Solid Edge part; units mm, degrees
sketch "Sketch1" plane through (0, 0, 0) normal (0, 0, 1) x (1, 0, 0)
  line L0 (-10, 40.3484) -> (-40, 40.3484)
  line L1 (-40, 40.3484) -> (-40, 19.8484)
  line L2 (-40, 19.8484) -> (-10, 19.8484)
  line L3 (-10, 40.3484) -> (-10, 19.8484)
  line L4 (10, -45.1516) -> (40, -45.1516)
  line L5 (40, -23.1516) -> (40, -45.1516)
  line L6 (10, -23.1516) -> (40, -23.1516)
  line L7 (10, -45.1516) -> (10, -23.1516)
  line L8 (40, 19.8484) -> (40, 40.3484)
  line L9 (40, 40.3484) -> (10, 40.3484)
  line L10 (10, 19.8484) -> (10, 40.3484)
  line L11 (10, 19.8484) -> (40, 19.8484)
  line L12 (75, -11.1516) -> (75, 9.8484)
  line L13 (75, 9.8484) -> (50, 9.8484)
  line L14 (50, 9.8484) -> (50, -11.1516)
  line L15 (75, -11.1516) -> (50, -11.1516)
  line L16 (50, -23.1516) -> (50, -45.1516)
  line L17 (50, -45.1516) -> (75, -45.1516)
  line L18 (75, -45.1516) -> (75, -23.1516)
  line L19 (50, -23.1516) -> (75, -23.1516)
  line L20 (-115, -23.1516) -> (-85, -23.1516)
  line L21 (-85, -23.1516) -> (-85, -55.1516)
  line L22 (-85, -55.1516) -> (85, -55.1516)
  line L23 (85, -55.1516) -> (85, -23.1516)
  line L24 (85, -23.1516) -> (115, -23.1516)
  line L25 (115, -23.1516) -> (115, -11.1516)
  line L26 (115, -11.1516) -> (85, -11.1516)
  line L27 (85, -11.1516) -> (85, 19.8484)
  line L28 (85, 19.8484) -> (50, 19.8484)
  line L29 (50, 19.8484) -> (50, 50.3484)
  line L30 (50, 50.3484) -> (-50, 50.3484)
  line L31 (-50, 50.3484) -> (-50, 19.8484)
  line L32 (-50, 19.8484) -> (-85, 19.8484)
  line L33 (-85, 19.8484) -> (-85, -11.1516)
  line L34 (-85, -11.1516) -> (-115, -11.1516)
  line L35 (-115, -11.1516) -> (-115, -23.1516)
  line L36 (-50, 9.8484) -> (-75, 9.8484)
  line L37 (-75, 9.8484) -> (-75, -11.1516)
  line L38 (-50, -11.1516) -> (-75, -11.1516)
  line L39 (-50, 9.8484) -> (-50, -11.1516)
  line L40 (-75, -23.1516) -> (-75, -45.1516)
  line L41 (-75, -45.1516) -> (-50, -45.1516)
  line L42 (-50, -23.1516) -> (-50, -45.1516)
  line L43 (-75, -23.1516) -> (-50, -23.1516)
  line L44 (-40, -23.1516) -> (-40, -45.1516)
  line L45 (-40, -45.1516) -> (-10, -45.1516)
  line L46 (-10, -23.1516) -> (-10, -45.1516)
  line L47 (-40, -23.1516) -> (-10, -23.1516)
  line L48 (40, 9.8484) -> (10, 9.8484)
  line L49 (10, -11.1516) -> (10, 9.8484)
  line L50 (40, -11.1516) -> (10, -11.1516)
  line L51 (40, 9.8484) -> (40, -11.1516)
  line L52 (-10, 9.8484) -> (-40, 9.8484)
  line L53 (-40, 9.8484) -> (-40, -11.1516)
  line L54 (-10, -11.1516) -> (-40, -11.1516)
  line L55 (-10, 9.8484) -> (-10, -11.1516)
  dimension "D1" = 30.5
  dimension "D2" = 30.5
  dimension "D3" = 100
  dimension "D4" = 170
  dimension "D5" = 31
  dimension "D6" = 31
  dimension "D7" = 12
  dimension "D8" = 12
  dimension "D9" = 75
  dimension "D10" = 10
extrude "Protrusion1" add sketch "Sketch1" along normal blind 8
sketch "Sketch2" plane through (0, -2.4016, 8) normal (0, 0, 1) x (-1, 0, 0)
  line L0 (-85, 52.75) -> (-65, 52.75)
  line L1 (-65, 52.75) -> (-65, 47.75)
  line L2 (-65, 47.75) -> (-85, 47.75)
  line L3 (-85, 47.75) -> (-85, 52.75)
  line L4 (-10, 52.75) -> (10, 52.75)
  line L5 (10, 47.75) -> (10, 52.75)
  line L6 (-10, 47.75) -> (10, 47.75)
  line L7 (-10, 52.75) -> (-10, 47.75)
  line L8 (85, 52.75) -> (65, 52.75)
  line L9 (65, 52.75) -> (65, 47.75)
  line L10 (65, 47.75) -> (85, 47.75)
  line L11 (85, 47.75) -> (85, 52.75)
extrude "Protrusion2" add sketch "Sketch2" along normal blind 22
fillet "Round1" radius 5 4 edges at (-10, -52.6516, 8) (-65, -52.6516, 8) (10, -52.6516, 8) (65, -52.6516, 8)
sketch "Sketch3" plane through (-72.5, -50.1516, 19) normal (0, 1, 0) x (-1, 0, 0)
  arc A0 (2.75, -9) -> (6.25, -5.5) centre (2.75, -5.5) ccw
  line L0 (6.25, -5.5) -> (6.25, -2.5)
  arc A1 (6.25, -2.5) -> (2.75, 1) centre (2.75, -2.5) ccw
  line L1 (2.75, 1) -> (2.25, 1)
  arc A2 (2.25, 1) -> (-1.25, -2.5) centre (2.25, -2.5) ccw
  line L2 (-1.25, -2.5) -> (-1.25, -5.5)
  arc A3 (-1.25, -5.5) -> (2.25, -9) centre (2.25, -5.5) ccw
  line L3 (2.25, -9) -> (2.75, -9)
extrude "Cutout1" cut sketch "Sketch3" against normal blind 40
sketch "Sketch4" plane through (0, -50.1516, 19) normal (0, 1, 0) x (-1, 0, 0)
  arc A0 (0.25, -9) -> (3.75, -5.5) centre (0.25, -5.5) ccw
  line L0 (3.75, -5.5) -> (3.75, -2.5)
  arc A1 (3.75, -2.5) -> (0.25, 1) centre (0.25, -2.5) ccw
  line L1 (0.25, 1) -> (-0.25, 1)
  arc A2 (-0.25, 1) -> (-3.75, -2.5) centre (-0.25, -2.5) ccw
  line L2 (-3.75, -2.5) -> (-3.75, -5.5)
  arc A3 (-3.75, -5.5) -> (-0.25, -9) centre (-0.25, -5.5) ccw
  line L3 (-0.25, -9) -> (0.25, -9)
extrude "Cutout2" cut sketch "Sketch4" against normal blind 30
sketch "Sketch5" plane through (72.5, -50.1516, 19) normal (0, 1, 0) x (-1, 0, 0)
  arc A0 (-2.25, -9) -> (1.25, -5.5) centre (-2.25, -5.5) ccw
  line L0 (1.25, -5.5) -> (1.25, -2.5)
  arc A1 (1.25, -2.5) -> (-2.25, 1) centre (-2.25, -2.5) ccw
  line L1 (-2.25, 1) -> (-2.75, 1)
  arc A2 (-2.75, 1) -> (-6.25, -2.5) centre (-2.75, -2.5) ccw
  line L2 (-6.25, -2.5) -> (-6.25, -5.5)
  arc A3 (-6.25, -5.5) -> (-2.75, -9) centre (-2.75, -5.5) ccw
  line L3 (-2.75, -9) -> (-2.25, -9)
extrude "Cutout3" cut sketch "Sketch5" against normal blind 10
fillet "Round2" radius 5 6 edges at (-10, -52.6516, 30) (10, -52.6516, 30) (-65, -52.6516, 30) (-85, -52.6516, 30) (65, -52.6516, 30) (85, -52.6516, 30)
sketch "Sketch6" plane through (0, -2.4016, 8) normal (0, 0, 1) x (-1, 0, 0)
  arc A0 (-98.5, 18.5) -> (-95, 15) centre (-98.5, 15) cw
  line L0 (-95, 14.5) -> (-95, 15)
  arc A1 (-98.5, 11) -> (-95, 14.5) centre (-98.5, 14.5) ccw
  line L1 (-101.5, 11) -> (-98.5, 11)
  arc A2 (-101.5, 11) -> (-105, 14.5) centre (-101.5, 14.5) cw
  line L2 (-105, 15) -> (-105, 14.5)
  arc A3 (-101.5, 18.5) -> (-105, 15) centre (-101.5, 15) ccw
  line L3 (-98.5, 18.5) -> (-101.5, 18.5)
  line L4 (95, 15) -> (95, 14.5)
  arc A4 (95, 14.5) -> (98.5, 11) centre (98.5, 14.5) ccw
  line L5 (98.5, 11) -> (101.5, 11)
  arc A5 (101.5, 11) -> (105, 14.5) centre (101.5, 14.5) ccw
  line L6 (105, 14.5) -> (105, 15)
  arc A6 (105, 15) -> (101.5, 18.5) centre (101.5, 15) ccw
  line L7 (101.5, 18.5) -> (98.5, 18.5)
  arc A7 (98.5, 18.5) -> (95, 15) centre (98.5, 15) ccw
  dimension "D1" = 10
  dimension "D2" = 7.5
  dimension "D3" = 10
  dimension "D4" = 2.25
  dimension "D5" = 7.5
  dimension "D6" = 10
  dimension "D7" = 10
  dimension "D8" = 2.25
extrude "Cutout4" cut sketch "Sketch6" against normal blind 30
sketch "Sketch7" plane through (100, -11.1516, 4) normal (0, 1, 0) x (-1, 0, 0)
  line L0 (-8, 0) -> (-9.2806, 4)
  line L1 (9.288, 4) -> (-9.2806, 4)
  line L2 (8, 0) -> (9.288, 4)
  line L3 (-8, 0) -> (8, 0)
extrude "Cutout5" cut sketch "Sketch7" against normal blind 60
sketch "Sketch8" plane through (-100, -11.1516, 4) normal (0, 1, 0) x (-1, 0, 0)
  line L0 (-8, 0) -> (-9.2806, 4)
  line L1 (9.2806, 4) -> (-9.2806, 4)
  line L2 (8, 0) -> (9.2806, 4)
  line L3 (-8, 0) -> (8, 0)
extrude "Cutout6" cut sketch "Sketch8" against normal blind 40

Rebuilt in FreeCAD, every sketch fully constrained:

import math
import FreeCAD as App
import Part
import Sketcher

V = App.Vector


def edges_at(feature, points):
    """Names of the edges that pass closest to the given points."""
    edges = feature.Shape.Edges
    near = lambda p: min(range(len(edges)), key=lambda i: edges[i].distToShape(Part.Vertex(*p))[0])
    return sorted({f"Edge{near(p) + 1}" for p in points})


def add_polygon(sketch, points):
    """Adds a closed chain of lines whose ends are joined by coincident constraints."""
    first, n = sketch.GeometryCount, len(points)
    for a, b in zip(points, points[1:] + points[:1]):
        sketch.addGeometry(Part.LineSegment(App.Vector(*a, 0), App.Vector(*b, 0)), False)
    for i in range(n):
        sketch.addConstraint(Sketcher.Constraint("Coincident", first + i, 2, first + (i + 1) % n, 1))

doc = App.newDocument("Part")
body = doc.addObject("PartDesign::Body", "Body")

sketch1 = body.newObject("Sketcher::SketchObject", "Sketch")
sketch1.AttachmentSupport = (doc.getObject("XY_Plane"), [""])
sketch1.MapMode = "FlatFace"
add_polygon(sketch1, [(-115, -11), (-115, -23), (-85, -23), (-85, -55), (85, -55), (85, -23), (115, -23), (115, -11), (85, -11), (85, 20), (50, 20), (50, 50), (-50, 50), (-50, 20), (-85, 20), (-85, -11)])
add_polygon(sketch1, [(-75, -45), (-75, -23), (-50, -23), (-50, -45)])
add_polygon(sketch1, [(-40, -45), (-40, -23), (-10, -23), (-10, -45)])
add_polygon(sketch1, [(40, -45), (10, -45), (10, -23), (40, -23)])
add_polygon(sketch1, [(50, -45), (50, -23), (75, -23), (75, -45)])
add_polygon(sketch1, [(-75, 10), (-50, 10), (-50, -11), (-75, -11)])
add_polygon(sketch1, [(-40, 10), (-10, 10), (-10, -11), (-40, -11)])
add_polygon(sketch1, [(-40, 40), (-10, 40), (-10, 20), (-40, 20)])
add_polygon(sketch1, [(10, 10), (40, 10), (40, -11), (10, -11)])
add_polygon(sketch1, [(75, 10), (75, -11), (50, -11), (50, 10)])
add_polygon(sketch1, [(40, 40), (40, 20), (10, 20), (10, 40)])
sketch1.addConstraint([
    Sketcher.Constraint("Vertical", 0),
    Sketcher.Constraint("Horizontal", 1),
    Sketcher.Constraint("Vertical", 2),
    Sketcher.Constraint("Horizontal", 3),
    Sketcher.Constraint("Vertical", 4),
    Sketcher.Constraint("Horizontal", 5),
    Sketcher.Constraint("Vertical", 6),
    Sketcher.Constraint("Horizontal", 7),
    Sketcher.Constraint("Vertical", 8),
    Sketcher.Constraint("Horizontal", 9),
    Sketcher.Constraint("Vertical", 10),
    Sketcher.Constraint("Horizontal", 11),
    Sketcher.Constraint("Vertical", 12),
    Sketcher.Constraint("Horizontal", 13),
    Sketcher.Constraint("Vertical", 14),
    Sketcher.Constraint("Horizontal", 15),
    Sketcher.Constraint("Vertical", 16),
    Sketcher.Constraint("Horizontal", 17),
    Sketcher.Constraint("Vertical", 18),
    Sketcher.Constraint("Horizontal", 19),
    Sketcher.Constraint("Vertical", 20),
    Sketcher.Constraint("Horizontal", 21),
    Sketcher.Constraint("Vertical", 22),
    Sketcher.Constraint("Horizontal", 23),
    Sketcher.Constraint("Horizontal", 24),
    Sketcher.Constraint("Vertical", 25),
    Sketcher.Constraint("Horizontal", 26),
    Sketcher.Constraint("Vertical", 27),
    Sketcher.Constraint("Vertical", 28),
    Sketcher.Constraint("Horizontal", 29),
    Sketcher.Constraint("Vertical", 30),
    Sketcher.Constraint("Horizontal", 31),
    Sketcher.Constraint("Horizontal", 32),
    Sketcher.Constraint("Vertical", 33),
    Sketcher.Constraint("Horizontal", 34),
    Sketcher.Constraint("Vertical", 35),
    Sketcher.Constraint("Horizontal", 36),
    Sketcher.Constraint("Vertical", 37),
    Sketcher.Constraint("Horizontal", 38),
    Sketcher.Constraint("Vertical", 39),
    Sketcher.Constraint("Horizontal", 40),
    Sketcher.Constraint("Vertical", 41),
    Sketcher.Constraint("Horizontal", 42),
    Sketcher.Constraint("Vertical", 43),
    Sketcher.Constraint("Horizontal", 44),
    Sketcher.Constraint("Vertical", 45),
    Sketcher.Constraint("Horizontal", 46),
    Sketcher.Constraint("Vertical", 47),
    Sketcher.Constraint("Vertical", 48),
    Sketcher.Constraint("Horizontal", 49),
    Sketcher.Constraint("Vertical", 50),
    Sketcher.Constraint("Horizontal", 51),
    Sketcher.Constraint("Vertical", 52),
    Sketcher.Constraint("Horizontal", 53),
    Sketcher.Constraint("Vertical", 54),
    Sketcher.Constraint("Horizontal", 55),
    Sketcher.Constraint("Symmetric", 1, 2, 4, 2, -2),
    Sketcher.Constraint("Symmetric", 9, 2, 12, 2, -2),
    Sketcher.Constraint("Symmetric", 7, 2, 14, 2, -2),
    Sketcher.Constraint("Symmetric", 22, 2, 24, 2, -2),
    Sketcher.Constraint("Symmetric", 20, 2, 26, 2, -2),
    Sketcher.Constraint("Symmetric", 17, 2, 28, 2, -2),
    Sketcher.Constraint("Symmetric", 19, 2, 30, 2, -2),
    Sketcher.Constraint("Symmetric", 39, 2, 44, 2, -2),
    Sketcher.Constraint("Symmetric", 37, 2, 46, 2, -2),
    Sketcher.Constraint("Symmetric", 34, 2, 48, 2, -2),
    Sketcher.Constraint("Symmetric", 32, 2, 50, 2, -2),
    Sketcher.Constraint("Symmetric", 42, 2, 52, 2, -2),
    Sketcher.Constraint("Symmetric", 40, 2, 54, 2, -2),
    Sketcher.Constraint("Horizontal", 5, 2, 16, 2),
    Sketcher.Constraint("Horizontal", 17, 2, 20, 2),
    Sketcher.Constraint("Horizontal", 19, 2, 22, 2),
    Sketcher.Constraint("Horizontal", 15, 2, 33, 2),
    Sketcher.Constraint("Horizontal", 35, 2, 36, 2),
    Sketcher.Constraint("Horizontal", 34, 2, 37, 2),
    Sketcher.Constraint("Horizontal", 13, 2, 41, 2),
    Sketcher.Constraint("Vertical", 4, 2, 7, 2),
    Sketcher.Constraint("Vertical", 12, 2, 17, 2),
    Sketcher.Constraint("Vertical", 18, 2, 32, 2),
    Sketcher.Constraint("Vertical", 19, 2, 34, 2),
    Sketcher.Constraint("Vertical", 22, 2, 36, 2),
    Sketcher.Constraint("Vertical", 23, 2, 38, 2),
    Sketcher.Constraint("Vertical", 37, 2, 40, 2),
    Sketcher.Constraint("Vertical", 39, 2, 42, 2),
    Sketcher.Constraint("Equal", 1, 5),
    Sketcher.Constraint("Equal", 15, 21),
    Sketcher.Constraint("DistanceX", 1, 1, 1, 2, 30.0),
    Sketcher.Constraint("DistanceX", 3, 1, 3, 2, 170.0),
    Sketcher.Constraint("DistanceX", 9, 2, 9, 1, 35.0),
    Sketcher.Constraint("DistanceX", 17, 1, 17, 2, 25.0),
    Sketcher.Constraint("DistanceY", 0, 2, 0, 1, 12.0),
    Sketcher.Constraint("DistanceY", 2, 2, 2, 1, 32.0),
    Sketcher.Constraint("DistanceY", 8, 1, 8, 2, 31.0),
    Sketcher.Constraint("DistanceY", 16, 1, 16, 2, 22.0),
    Sketcher.Constraint("DistanceY", 33, 2, 33, 1, 21.0),
    Sketcher.Constraint("DistanceY", 10, 1, 10, 2, 30.5),
    Sketcher.Constraint("DistanceY", 41, 2, 41, 1, 20.5),
    Sketcher.Constraint("DistanceX", 20, 2, -1, 1, 40.0),
    Sketcher.Constraint("DistanceY", 0, 2, -1, 1, 23.1516),
])
pad1 = body.newObject("PartDesign::Pad", "Pad")
pad1.Profile = sketch1
pad1.Length = 8

sketch2 = body.newObject("Sketcher::SketchObject", "Sketch001")
sketch2.AttachmentSupport = (doc.getObject("XY_Plane"), [""])
sketch2.MapMode = "FlatFace"
sketch2.AttachmentOffset = App.Placement(V(0, 0, 8), App.Rotation())
add_polygon(sketch2, [(65, -55), (85, -55), (85, -50), (65, -50)])
add_polygon(sketch2, [(-10, -55), (10, -55), (10, -50), (-10, -50)])
add_polygon(sketch2, [(-85, -50), (-85, -55), (-65, -55), (-65, -50)])
sketch2.addConstraint([
    Sketcher.Constraint("Horizontal", 0),
    Sketcher.Constraint("Vertical", 1),
    Sketcher.Constraint("Horizontal", 2),
    Sketcher.Constraint("Vertical", 3),
    Sketcher.Constraint("Horizontal", 4),
    Sketcher.Constraint("Vertical", 5),
    Sketcher.Constraint("Horizontal", 6),
    Sketcher.Constraint("Vertical", 7),
    Sketcher.Constraint("Vertical", 8),
    Sketcher.Constraint("Horizontal", 9),
    Sketcher.Constraint("Vertical", 10),
    Sketcher.Constraint("Horizontal", 11),
    Sketcher.Constraint("Symmetric", 0, 2, 8, 2, -2),
    Sketcher.Constraint("Symmetric", 2, 2, 10, 2, -2),
    Sketcher.Constraint("Horizontal", 3, 2, 4, 2),
    Sketcher.Constraint("Horizontal", 2, 2, 5, 2),
    Sketcher.Constraint("Equal", 2, 4),
    Sketcher.Constraint("DistanceX", 0, 1, 0, 2, 20.0),
    Sketcher.Constraint("DistanceY", 1, 1, 1, 2, 5.0),
    Sketcher.Constraint("DistanceX", -1, 1, 0, 2, 85.0),
    Sketcher.Constraint("DistanceX", -1, 1, 4, 2, 10.0),
    Sketcher.Constraint("DistanceY", 0, 2, -1, 1, 55.1516),
])
pad2 = body.newObject("PartDesign::Pad", "Pad001")
pad2.Profile = sketch2
pad2.Length = 22
doc.recompute()

fillet = body.newObject("PartDesign::Fillet", "Fillet")
fillet.Base = (pad2, edges_at(pad2, [
    (-10, -52.652, 8),
    (-65, -52.652, 8),
    (10, -52.652, 8),
    (65, -52.652, 8),
]))
fillet.Radius = 5

sketch3 = body.newObject("Sketcher::SketchObject", "Sketch002")
sketch3.AttachmentSupport = (doc.getObject("XZ_Plane"), [""])
sketch3.MapMode = "FlatFace"
sketch3.AttachmentOffset = App.Placement(V(0, 0, 50.1516), App.Rotation())
sketch3.addGeometry([
    Part.LineSegment(V(-74.8, 10, 0), V(-75.2, 10, 0)),
    Part.ArcOfCircle(Part.Circle(V(-75.2, 13.5, 0), V(0, 0, 1), 3.5), math.radians(180), math.radians(270)),
    Part.LineSegment(V(-78.8, 13.5, 0), V(-78.8, 16.5, 0)),
    Part.ArcOfCircle(Part.Circle(V(-75.2, 16.5, 0), V(0, 0, 1), 3.5), math.radians(90), math.radians(180)),
    Part.LineSegment(V(-75.2, 20, 0), V(-74.8, 20, 0)),
    Part.ArcOfCircle(Part.Circle(V(-74.8, 16.5, 0), V(0, 0, 1), 3.5), math.radians(0), math.radians(90)),
    Part.LineSegment(V(-71.2, 16.5, 0), V(-71.2, 13.5, 0)),
    Part.ArcOfCircle(Part.Circle(V(-74.8, 13.5, 0), V(0, 0, 1), 3.5), math.radians(-90), math.radians(0)),
], False)
sketch3.addConstraint([
    Sketcher.Constraint("Tangent", 0, 2, 1, 2),
    Sketcher.Constraint("Tangent", 1, 1, 2, 1),
    Sketcher.Constraint("Tangent", 2, 2, 3, 2),
    Sketcher.Constraint("Tangent", 3, 1, 4, 1),
    Sketcher.Constraint("Tangent", 4, 2, 5, 2),
    Sketcher.Constraint("Tangent", 5, 1, 6, 1),
    Sketcher.Constraint("Tangent", 6, 2, 7, 2),
    Sketcher.Constraint("Tangent", 7, 1, 0, 1),
    Sketcher.Constraint("Horizontal", 0),
    Sketcher.Constraint("Vertical", 2),
    Sketcher.Constraint("Horizontal", 4),
    Sketcher.Constraint("Vertical", 6),
    Sketcher.Constraint("Equal", 1, 3),
    Sketcher.Constraint("Equal", 3, 5),
    Sketcher.Constraint("Equal", 5, 7),
    Sketcher.Constraint("Radius", 1, 3.5),
    Sketcher.Constraint("DistanceY", 2, 1, 2, 2, 3.0),
    Sketcher.Constraint("DistanceX", 0, 2, 0, 1, 0.5),
    Sketcher.Constraint("DistanceY", -1, 1, 0, 2, 10.0),
    Sketcher.Constraint("DistanceX", 1, 3, -1, 1, 75.25),
])
pocket1 = body.newObject("PartDesign::Pocket", "Pocket")
pocket1.Profile = sketch3
pocket1.Length = 40
pocket1.Reversed = True

sketch4 = body.newObject("Sketcher::SketchObject", "Sketch003")
sketch4.AttachmentSupport = (doc.getObject("XZ_Plane"), [""])
sketch4.MapMode = "FlatFace"
sketch4.AttachmentOffset = App.Placement(V(0, 0, 50.1516), App.Rotation())
sketch4.addGeometry([
    Part.LineSegment(V(0.2, 10, 0), V(-0.2, 10, 0)),
    Part.ArcOfCircle(Part.Circle(V(-0.2, 13.5, 0), V(0, 0, 1), 3.5), math.radians(180), math.radians(270)),
    Part.LineSegment(V(-3.8, 13.5, 0), V(-3.8, 16.5, 0)),
    Part.ArcOfCircle(Part.Circle(V(-0.2, 16.5, 0), V(0, 0, 1), 3.5), math.radians(90), math.radians(180)),
    Part.LineSegment(V(-0.2, 20, 0), V(0.2, 20, 0)),
    Part.ArcOfCircle(Part.Circle(V(0.2, 16.5, 0), V(0, 0, 1), 3.5), math.radians(0), math.radians(90)),
    Part.LineSegment(V(3.8, 16.5, 0), V(3.8, 13.5, 0)),
    Part.ArcOfCircle(Part.Circle(V(0.2, 13.5, 0), V(0, 0, 1), 3.5), math.radians(-90), math.radians(0)),
], False)
sketch4.addConstraint([
    Sketcher.Constraint("Tangent", 0, 2, 1, 2),
    Sketcher.Constraint("Tangent", 1, 1, 2, 1),
    Sketcher.Constraint("Tangent", 2, 2, 3, 2),
    Sketcher.Constraint("Tangent", 3, 1, 4, 1),
    Sketcher.Constraint("Tangent", 4, 2, 5, 2),
    Sketcher.Constraint("Tangent", 5, 1, 6, 1),
    Sketcher.Constraint("Tangent", 6, 2, 7, 2),
    Sketcher.Constraint("Tangent", 7, 1, 0, 1),
    Sketcher.Constraint("Horizontal", 0),
    Sketcher.Constraint("Vertical", 2),
    Sketcher.Constraint("Horizontal", 4),
    Sketcher.Constraint("Vertical", 6),
    Sketcher.Constraint("Equal", 1, 3),
    Sketcher.Constraint("Equal", 3, 5),
    Sketcher.Constraint("Equal", 5, 7),
    Sketcher.Constraint("Radius", 1, 3.5),
    Sketcher.Constraint("DistanceY", 2, 1, 2, 2, 3.0),
    Sketcher.Constraint("DistanceX", 0, 2, 0, 1, 0.5),
    Sketcher.Constraint("DistanceY", -1, 1, 0, 2, 10.0),
    Sketcher.Constraint("DistanceX", 1, 3, -1, 1, 0.25),
])
pocket2 = body.newObject("PartDesign::Pocket", "Pocket001")
pocket2.Profile = sketch4
pocket2.Length = 30
pocket2.Reversed = True

sketch5 = body.newObject("Sketcher::SketchObject", "Sketch004")
sketch5.AttachmentSupport = (doc.getObject("XZ_Plane"), [""])
sketch5.MapMode = "FlatFace"
sketch5.AttachmentOffset = App.Placement(V(0, 0, 50.1516), App.Rotation())
sketch5.addGeometry([
    Part.LineSegment(V(75.2, 10, 0), V(74.8, 10, 0)),
    Part.ArcOfCircle(Part.Circle(V(74.8, 13.5, 0), V(0, 0, 1), 3.5), math.radians(180), math.radians(270)),
    Part.LineSegment(V(71.2, 13.5, 0), V(71.2, 16.5, 0)),
    Part.ArcOfCircle(Part.Circle(V(74.8, 16.5, 0), V(0, 0, 1), 3.5), math.radians(90), math.radians(180)),
    Part.LineSegment(V(74.8, 20, 0), V(75.2, 20, 0)),
    Part.ArcOfCircle(Part.Circle(V(75.2, 16.5, 0), V(0, 0, 1), 3.5), math.radians(0), math.radians(90)),
    Part.LineSegment(V(78.8, 16.5, 0), V(78.8, 13.5, 0)),
    Part.ArcOfCircle(Part.Circle(V(75.2, 13.5, 0), V(0, 0, 1), 3.5), math.radians(-90), math.radians(0)),
], False)
sketch5.addConstraint([
    Sketcher.Constraint("Tangent", 0, 2, 1, 2),
    Sketcher.Constraint("Tangent", 1, 1, 2, 1),
    Sketcher.Constraint("Tangent", 2, 2, 3, 2),
    Sketcher.Constraint("Tangent", 3, 1, 4, 1),
    Sketcher.Constraint("Tangent", 4, 2, 5, 2),
    Sketcher.Constraint("Tangent", 5, 1, 6, 1),
    Sketcher.Constraint("Tangent", 6, 2, 7, 2),
    Sketcher.Constraint("Tangent", 7, 1, 0, 1),
    Sketcher.Constraint("Horizontal", 0),
    Sketcher.Constraint("Vertical", 2),
    Sketcher.Constraint("Horizontal", 4),
    Sketcher.Constraint("Vertical", 6),
    Sketcher.Constraint("Equal", 1, 3),
    Sketcher.Constraint("Equal", 3, 5),
    Sketcher.Constraint("Equal", 5, 7),
    Sketcher.Constraint("Radius", 1, 3.5),
    Sketcher.Constraint("DistanceY", 2, 1, 2, 2, 3.0),
    Sketcher.Constraint("DistanceX", 0, 2, 0, 1, 0.5),
    Sketcher.Constraint("DistanceY", -1, 1, 0, 2, 10.0),
    Sketcher.Constraint("DistanceX", -1, 1, 1, 3, 74.75),
])
pocket3 = body.newObject("PartDesign::Pocket", "Pocket002")
pocket3.Profile = sketch5
pocket3.Length = 10
pocket3.Reversed = True
doc.recompute()

fillet2 = body.newObject("PartDesign::Fillet", "Fillet001")
fillet2.Base = (pocket3, edges_at(pocket3, [
    (-10, -52.652, 30),
    (10, -52.652, 30),
    (-65, -52.652, 30),
    (-85, -52.652, 30),
    (65, -52.652, 30),
    (85, -52.652, 30),
]))
fillet2.Radius = 5

sketch6 = body.newObject("Sketcher::SketchObject", "Sketch005")
sketch6.AttachmentSupport = (doc.getObject("XY_Plane"), [""])
sketch6.MapMode = "FlatFace"
sketch6.AttachmentOffset = App.Placement(V(0, 0, 8), App.Rotation())
sketch6.addGeometry([
    Part.ArcOfCircle(Part.Circle(V(98.5, -17.4, 0), V(0, 0, 1), 3.5), math.radians(180), math.radians(270)),
    Part.LineSegment(V(98.5, -20.9, 0), V(101.5, -20.9, 0)),
    Part.ArcOfCircle(Part.Circle(V(101.5, -17.4, 0), V(0, 0, 1), 3.5), math.radians(-90), math.radians(0)),
    Part.LineSegment(V(105, -17.4, 0), V(105, -16.9, 0)),
    Part.ArcOfCircle(Part.Circle(V(101.5, -16.9, 0), V(0, 0, 1), 3.5), math.radians(0), math.radians(90)),
    Part.LineSegment(V(101.5, -13.4, 0), V(98.5, -13.4, 0)),
    Part.ArcOfCircle(Part.Circle(V(98.5, -16.9, 0), V(0, 0, 1), 3.5), math.radians(90), math.radians(180)),
    Part.LineSegment(V(95, -16.9, 0), V(95, -17.4, 0)),
    Part.ArcOfCircle(Part.Circle(V(-98.5, -17.4, 0), V(0, 0, 1), 3.5), math.radians(-90), math.radians(0)),
    Part.LineSegment(V(-95, -17.4, 0), V(-95, -16.9, 0)),
    Part.ArcOfCircle(Part.Circle(V(-98.5, -16.9, 0), V(0, 0, 1), 3.5), math.radians(0), math.radians(90)),
    Part.LineSegment(V(-98.5, -13.4, 0), V(-101.5, -13.4, 0)),
    Part.ArcOfCircle(Part.Circle(V(-101.5, -16.9, 0), V(0, 0, 1), 3.5), math.radians(90), math.radians(180)),
    Part.LineSegment(V(-105, -16.9, 0), V(-105, -17.4, 0)),
    Part.ArcOfCircle(Part.Circle(V(-101.5, -17.4, 0), V(0, 0, 1), 3.5), math.radians(180), math.radians(270)),
    Part.LineSegment(V(-101.5, -20.9, 0), V(-98.5, -20.9, 0)),
], False)
sketch6.addConstraint([
    Sketcher.Constraint("Tangent", 0, 2, 1, 1),
    Sketcher.Constraint("Tangent", 1, 2, 2, 1),
    Sketcher.Constraint("Tangent", 2, 2, 3, 1),
    Sketcher.Constraint("Tangent", 3, 2, 4, 1),
    Sketcher.Constraint("Tangent", 4, 2, 5, 1),
    Sketcher.Constraint("Tangent", 5, 2, 6, 1),
    Sketcher.Constraint("Tangent", 6, 2, 7, 1),
    Sketcher.Constraint("Tangent", 7, 2, 0, 1),
    Sketcher.Constraint("Tangent", 8, 2, 9, 1),
    Sketcher.Constraint("Tangent", 9, 2, 10, 1),
    Sketcher.Constraint("Tangent", 10, 2, 11, 1),
    Sketcher.Constraint("Tangent", 11, 2, 12, 1),
    Sketcher.Constraint("Tangent", 12, 2, 13, 1),
    Sketcher.Constraint("Tangent", 13, 2, 14, 1),
    Sketcher.Constraint("Tangent", 14, 2, 15, 1),
    Sketcher.Constraint("Tangent", 15, 2, 8, 1),
    Sketcher.Constraint("Horizontal", 1),
    Sketcher.Constraint("Vertical", 3),
    Sketcher.Constraint("Horizontal", 5),
    Sketcher.Constraint("Vertical", 7),
    Sketcher.Constraint("Vertical", 9),
    Sketcher.Constraint("Horizontal", 11),
    Sketcher.Constraint("Vertical", 13),
    Sketcher.Constraint("Horizontal", 15),
    Sketcher.Constraint("Equal", 0, 2),
    Sketcher.Constraint("Equal", 2, 4),
    Sketcher.Constraint("Equal", 4, 6),
    Sketcher.Constraint("Equal", 6, 8),
    Sketcher.Constraint("Equal", 8, 10),
    Sketcher.Constraint("Equal", 10, 12),
    Sketcher.Constraint("Equal", 12, 14),
    Sketcher.Constraint("Symmetric", 0, 3, 8, 3, -2),
    Sketcher.Constraint("Symmetric", 4, 3, 12, 3, -2),
    Sketcher.Constraint("Radius", 0, 3.5),
    Sketcher.Constraint("DistanceX", 1, 1, 1, 2, 3.0),
    Sketcher.Constraint("DistanceY", 3, 1, 3, 2, 0.5),
    Sketcher.Constraint("DistanceX", -1, 1, 2, 2, 105.0),
    Sketcher.Constraint("DistanceY", 0, 3, -1, 1, 17.4016),
])
pocket4 = body.newObject("PartDesign::Pocket", "Pocket003")
pocket4.Profile = sketch6
pocket4.Length = 30

sketch7 = body.newObject("Sketcher::SketchObject", "Sketch006")
sketch7.AttachmentSupport = (doc.getObject("XZ_Plane"), [""])
sketch7.MapMode = "FlatFace"
sketch7.AttachmentOffset = App.Placement(V(0, 0, 11.1516), App.Rotation())
add_polygon(sketch7, [(109.3, 8), (108, 4), (92, 4), (90.7, 8)])
sketch7.addConstraint([
    Sketcher.Constraint("Horizontal", 1),
    Sketcher.Constraint("Horizontal", 3),
    Sketcher.Constraint("DistanceX", 1, 2, 1, 1, 16.0),
    Sketcher.Constraint("DistanceX", -1, 1, 0, 2, 108.0),
    Sketcher.Constraint("DistanceY", -1, 1, 0, 2, 4.0),
    Sketcher.Constraint("DistanceY", -1, 1, 2, 2, 8.0),
    Sketcher.Constraint("Distance", 0, 4.2),
    Sketcher.Constraint("DistanceX", 3, 1, 3, 2, 18.5686),
])
pocket5 = body.newObject("PartDesign::Pocket", "Pocket004")
pocket5.Profile = sketch7
pocket5.Length = 60
pocket5.Reversed = True

sketch8 = body.newObject("Sketcher::SketchObject", "Sketch007")
sketch8.AttachmentSupport = (doc.getObject("XZ_Plane"), [""])
sketch8.MapMode = "FlatFace"
sketch8.AttachmentOffset = App.Placement(V(0, 0, 11.1516), App.Rotation())
add_polygon(sketch8, [(-90.7, 8), (-92, 4), (-108, 4), (-109.3, 8)])
sketch8.addConstraint([
    Sketcher.Constraint("Horizontal", 1),
    Sketcher.Constraint("Horizontal", 3),
    Sketcher.Constraint("Equal", 0, 2),
    Sketcher.Constraint("DistanceX", 1, 2, 1, 1, 16.0),
    Sketcher.Constraint("DistanceX", 0, 2, -1, 1, 92.0),
    Sketcher.Constraint("DistanceY", -1, 1, 0, 2, 4.0),
    Sketcher.Constraint("DistanceY", -1, 1, 2, 2, 8.0),
    Sketcher.Constraint("Distance", 0, 4.2),
])
pocket6 = body.newObject("PartDesign::Pocket", "Pocket005")
pocket6.Profile = sketch8
pocket6.Length = 40
pocket6.Reversed = True

doc.recompute()
